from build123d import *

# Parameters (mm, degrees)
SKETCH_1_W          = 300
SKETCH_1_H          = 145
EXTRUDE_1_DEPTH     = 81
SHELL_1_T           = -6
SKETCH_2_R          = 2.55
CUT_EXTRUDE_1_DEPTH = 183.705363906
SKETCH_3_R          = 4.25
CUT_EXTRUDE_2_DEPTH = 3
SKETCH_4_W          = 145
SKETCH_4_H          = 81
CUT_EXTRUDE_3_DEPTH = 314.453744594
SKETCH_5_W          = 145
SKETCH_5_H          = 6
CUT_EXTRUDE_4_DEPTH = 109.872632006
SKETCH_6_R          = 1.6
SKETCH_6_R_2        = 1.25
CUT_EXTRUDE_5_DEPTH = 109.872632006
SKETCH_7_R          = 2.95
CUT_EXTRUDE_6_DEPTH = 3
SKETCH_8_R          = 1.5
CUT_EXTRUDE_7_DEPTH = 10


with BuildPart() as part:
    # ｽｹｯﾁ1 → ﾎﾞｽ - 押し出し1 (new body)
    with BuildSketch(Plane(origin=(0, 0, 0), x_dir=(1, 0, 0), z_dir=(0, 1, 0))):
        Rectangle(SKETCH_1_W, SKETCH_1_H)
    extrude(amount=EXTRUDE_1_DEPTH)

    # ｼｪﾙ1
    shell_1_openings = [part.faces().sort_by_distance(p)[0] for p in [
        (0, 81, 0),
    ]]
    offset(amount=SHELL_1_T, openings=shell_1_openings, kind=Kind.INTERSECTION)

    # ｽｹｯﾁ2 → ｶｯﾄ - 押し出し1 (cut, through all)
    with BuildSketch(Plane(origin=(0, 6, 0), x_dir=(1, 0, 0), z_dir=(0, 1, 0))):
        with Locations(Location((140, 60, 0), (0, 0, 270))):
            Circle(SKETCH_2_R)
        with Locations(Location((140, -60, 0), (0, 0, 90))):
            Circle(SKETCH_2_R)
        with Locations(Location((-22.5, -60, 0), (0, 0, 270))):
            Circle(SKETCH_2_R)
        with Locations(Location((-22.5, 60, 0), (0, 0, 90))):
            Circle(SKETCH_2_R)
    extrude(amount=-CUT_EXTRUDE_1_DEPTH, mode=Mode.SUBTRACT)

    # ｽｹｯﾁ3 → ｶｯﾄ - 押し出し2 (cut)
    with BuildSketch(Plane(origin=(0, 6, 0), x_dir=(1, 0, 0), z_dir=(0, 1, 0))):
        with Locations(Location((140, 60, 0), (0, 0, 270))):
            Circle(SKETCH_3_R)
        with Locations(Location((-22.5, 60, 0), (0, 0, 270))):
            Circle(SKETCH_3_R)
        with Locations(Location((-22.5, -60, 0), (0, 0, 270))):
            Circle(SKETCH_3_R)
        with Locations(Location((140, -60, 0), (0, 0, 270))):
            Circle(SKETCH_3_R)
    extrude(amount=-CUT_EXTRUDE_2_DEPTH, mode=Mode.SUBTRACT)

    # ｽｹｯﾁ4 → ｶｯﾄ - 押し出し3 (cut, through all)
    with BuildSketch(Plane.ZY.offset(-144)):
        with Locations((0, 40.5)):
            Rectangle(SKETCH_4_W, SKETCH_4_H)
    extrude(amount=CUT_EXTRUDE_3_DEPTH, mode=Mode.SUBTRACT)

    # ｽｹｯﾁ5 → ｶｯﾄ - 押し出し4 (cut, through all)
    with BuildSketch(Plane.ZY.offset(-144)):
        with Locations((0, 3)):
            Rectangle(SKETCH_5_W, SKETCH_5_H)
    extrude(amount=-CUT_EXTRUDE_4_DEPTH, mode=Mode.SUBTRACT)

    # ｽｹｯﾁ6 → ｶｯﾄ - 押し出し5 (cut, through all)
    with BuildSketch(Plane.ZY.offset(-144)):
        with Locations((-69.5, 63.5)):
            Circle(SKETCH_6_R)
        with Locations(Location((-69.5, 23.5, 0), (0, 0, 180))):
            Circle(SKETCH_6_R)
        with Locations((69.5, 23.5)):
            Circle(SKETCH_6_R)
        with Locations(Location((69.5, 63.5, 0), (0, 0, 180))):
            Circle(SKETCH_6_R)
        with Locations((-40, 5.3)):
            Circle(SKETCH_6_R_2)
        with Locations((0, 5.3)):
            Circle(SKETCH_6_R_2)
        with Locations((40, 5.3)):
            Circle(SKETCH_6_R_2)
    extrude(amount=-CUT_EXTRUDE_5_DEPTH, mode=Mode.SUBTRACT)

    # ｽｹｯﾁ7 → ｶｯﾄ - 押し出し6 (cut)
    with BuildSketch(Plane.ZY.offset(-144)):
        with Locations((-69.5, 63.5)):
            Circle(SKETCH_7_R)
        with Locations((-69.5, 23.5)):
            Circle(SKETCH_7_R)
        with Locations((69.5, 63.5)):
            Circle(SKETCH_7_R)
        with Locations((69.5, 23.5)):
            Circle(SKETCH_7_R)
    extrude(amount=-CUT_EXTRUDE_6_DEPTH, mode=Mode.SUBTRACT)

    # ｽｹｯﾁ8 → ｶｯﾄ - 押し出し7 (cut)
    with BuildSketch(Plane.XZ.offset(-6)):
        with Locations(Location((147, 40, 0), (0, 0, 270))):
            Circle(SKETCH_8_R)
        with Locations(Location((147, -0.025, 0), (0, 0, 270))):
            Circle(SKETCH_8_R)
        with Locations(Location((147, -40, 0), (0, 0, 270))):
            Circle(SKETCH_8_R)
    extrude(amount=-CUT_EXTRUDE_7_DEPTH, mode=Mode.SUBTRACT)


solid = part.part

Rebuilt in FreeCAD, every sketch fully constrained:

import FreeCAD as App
import Part
import Sketcher


def faces_at(feature, points):
    """Names of the faces that lie closest to the given points."""
    faces = feature.Shape.Faces
    near = lambda p: min(range(len(faces)), key=lambda i: faces[i].distToShape(Part.Vertex(*p))[0])
    return sorted({f"Face{near(p) + 1}" for p in points})

doc = App.newDocument("Part")
body = doc.addObject("PartDesign::Body", "Body")

sketch1 = body.newObject("Sketcher::SketchObject", "Sketch")
sketch1.AttachmentSupport = (doc.getObject("XZ_Plane"), [""])
sketch1.MapMode = "FlatFace"
sketch1.addGeometry([
    Part.LineSegment(App.Vector(-150, -72, 0), App.Vector(-150, 72, 0)),
    Part.LineSegment(App.Vector(-150, 72, 0), App.Vector(150, 72, 0)),
    Part.LineSegment(App.Vector(150, 72, 0), App.Vector(150, -72, 0)),
    Part.LineSegment(App.Vector(150, -72, 0), App.Vector(-150, -72, 0)),
], False)
sketch1.addConstraint([
    Sketcher.Constraint("Coincident", 0, 2, 1, 1),
    Sketcher.Constraint("Coincident", 1, 2, 2, 1),
    Sketcher.Constraint("Coincident", 2, 2, 3, 1),
    Sketcher.Constraint("Coincident", 3, 2, 0, 1),
    Sketcher.Constraint("Vertical", 0),
    Sketcher.Constraint("Horizontal", 1),
    Sketcher.Constraint("Vertical", 2),
    Sketcher.Constraint("Horizontal", 3),
    Sketcher.Constraint("Symmetric", 0, 2, 2, 2, -1, 1),
    Sketcher.Constraint("DistanceX", 1, 1, 1, 2, 300.0),
    Sketcher.Constraint("DistanceY", 0, 1, 0, 2, 145.0),
])
pad1 = body.newObject("PartDesign::Pad", "Pad")
pad1.Profile = sketch1
pad1.Length = 81
pad1.Reversed = True
doc.recompute()

thickness = body.newObject("PartDesign::Thickness", "Thickness")
thickness.Base = (pad1, faces_at(pad1, [(0, 81, 0)]))
thickness.Value = 6
thickness.Reversed = True
thickness.Join = "Intersection"

sketch2 = body.newObject("Sketcher::SketchObject", "Sketch001")
sketch2.AttachmentSupport = (doc.getObject("XZ_Plane"), [""])
sketch2.MapMode = "FlatFace"
sketch2.AttachmentOffset = App.Placement(App.Vector(0, 0, -6), App.Rotation())
sketch2.addGeometry([
    Part.Circle(App.Vector(140, -60, 0), App.Vector(0, 0, 1), 2.5),
    Part.Circle(App.Vector(140, 60, 0), App.Vector(0, 0, 1), 2.5),
    Part.Circle(App.Vector(-22.5, 60, 0), App.Vector(0, 0, 1), 2.5),
    Part.Circle(App.Vector(-22.5, -60, 0), App.Vector(0, 0, 1), 2.5),
], False)
sketch2.addConstraint([
    Sketcher.Constraint("Equal", 0, 1),
    Sketcher.Constraint("Equal", 1, 2),
    Sketcher.Constraint("Equal", 2, 3),
    Sketcher.Constraint("Symmetric", 0, 3, 1, 3, -1),
    Sketcher.Constraint("Symmetric", 2, 3, 3, 3, -1),
    Sketcher.Constraint("Horizontal", 1, 3, 2, 3),
    Sketcher.Constraint("Diameter", 0, 5.1),
    Sketcher.Constraint("DistanceX", -1, 1, 0, 3, 140.0),
    Sketcher.Constraint("DistanceY", 0, 3, -1, 1, 60.0),
    Sketcher.Constraint("DistanceX", 2, 3, -1, 1, 22.5),
])
pocket1 = body.newObject("PartDesign::Pocket", "Pocket")
pocket1.Profile = sketch2
pocket1.Type = "ThroughAll"
pocket1.Reversed = True

sketch3 = body.newObject("Sketcher::SketchObject", "Sketch002")
sketch3.AttachmentSupport = (doc.getObject("XZ_Plane"), [""])
sketch3.MapMode = "FlatFace"
sketch3.AttachmentOffset = App.Placement(App.Vector(0, 0, -6), App.Rotation())
sketch3.addGeometry([
    Part.Circle(App.Vector(140, -60, 0), App.Vector(0, 0, 1), 4.2),
    Part.Circle(App.Vector(-22.5, -60, 0), App.Vector(0, 0, 1), 4.2),
    Part.Circle(App.Vector(-22.5, 60, 0), App.Vector(0, 0, 1), 4.2),
    Part.Circle(App.Vector(140, 60, 0), App.Vector(0, 0, 1), 4.2),
], False)
sketch3.addConstraint([
    Sketcher.Constraint("Equal", 0, 1),
    Sketcher.Constraint("Equal", 1, 2),
    Sketcher.Constraint("Equal", 2, 3),
    Sketcher.Constraint("Symmetric", 1, 3, 2, 3, -1),
    Sketcher.Constraint("Symmetric", 0, 3, 3, 3, -1),
    Sketcher.Constraint("Horizontal", 0, 3, 1, 3),
    Sketcher.Constraint("Diameter", 0, 8.5),
    Sketcher.Constraint("DistanceX", -1, 1, 0, 3, 140.0),
    Sketcher.Constraint("DistanceY", 0, 3, -1, 1, 60.0),
    Sketcher.Constraint("DistanceX", 1, 3, -1, 1, 22.5),
])
pocket2 = body.newObject("PartDesign::Pocket", "Pocket001")
pocket2.Profile = sketch3
pocket2.Length = 3
pocket2.Reversed = True

sketch4 = body.newObject("Sketcher::SketchObject", "Sketch003")
sketch4.AttachmentSupport = (doc.getObject("YZ_Plane"), [""])
sketch4.MapMode = "FlatFace"
sketch4.AttachmentOffset = App.Placement(App.Vector(0, 0, 144), App.Rotation())
sketch4.addGeometry([
    Part.LineSegment(App.Vector(81, -72, 0), App.Vector(0, -72, 0)),
    Part.LineSegment(App.Vector(0, -72, 0), App.Vector(0, 72, 0)),
    Part.LineSegment(App.Vector(0, 72, 0), App.Vector(81, 72, 0)),
    Part.LineSegment(App.Vector(81, 72, 0), App.Vector(81, -72, 0)),
], False)
sketch4.addConstraint([
    Sketcher.Constraint("Coincident", 0, 2, 1, 1),
    Sketcher.Constraint("Coincident", 1, 2, 2, 1),
    Sketcher.Constraint("Coincident", 2, 2, 3, 1),
    Sketcher.Constraint("Coincident", 3, 2, 0, 1),
    Sketcher.Constraint("Horizontal", 0),
    Sketcher.Constraint("Vertical", 1),
    Sketcher.Constraint("Horizontal", 2),
    Sketcher.Constraint("Vertical", 3),
    Sketcher.Constraint("Symmetric", 0, 2, 1, 2, -1, 1),
    Sketcher.Constraint("DistanceX", 0, 2, 0, 1, 81.0),
    Sketcher.Constraint("DistanceY", 1, 1, 1, 2, 145.0),
])
pocket3 = body.newObject("PartDesign::Pocket", "Pocket002")
pocket3.Profile = sketch4
pocket3.Type = "ThroughAll"

sketch5 = body.newObject("Sketcher::SketchObject", "Sketch004")
sketch5.AttachmentSupport = (doc.getObject("YZ_Plane"), [""])
sketch5.MapMode = "FlatFace"
sketch5.AttachmentOffset = App.Placement(App.Vector(0, 0, 144), App.Rotation())
sketch5.addGeometry([
    Part.LineSegment(App.Vector(6, -72, 0), App.Vector(0, -72, 0)),
    Part.LineSegment(App.Vector(0, -72, 0), App.Vector(0, 72, 0)),
    Part.LineSegment(App.Vector(0, 72, 0), App.Vector(6, 72, 0)),
    Part.LineSegment(App.Vector(6, 72, 0), App.Vector(6, -72, 0)),
], False)
sketch5.addConstraint([
    Sketcher.Constraint("Coincident", 0, 2, 1, 1),
    Sketcher.Constraint("Coincident", 1, 2, 2, 1),
    Sketcher.Constraint("Coincident", 2, 2, 3, 1),
    Sketcher.Constraint("Coincident", 3, 2, 0, 1),
    Sketcher.Constraint("Horizontal", 0),
    Sketcher.Constraint("Vertical", 1),
    Sketcher.Constraint("Horizontal", 2),
    Sketcher.Constraint("Vertical", 3),
    Sketcher.Constraint("Symmetric", 0, 2, 1, 2, -1, 1),
    Sketcher.Constraint("DistanceX", 0, 2, 0, 1, 6.0),
    Sketcher.Constraint("DistanceY", 1, 1, 1, 2, 145.0),
])
pocket4 = body.newObject("PartDesign::Pocket", "Pocket003")
pocket4.Profile = sketch5
pocket4.Type = "ThroughAll"
pocket4.Reversed = True

sketch6 = body.newObject("Sketcher::SketchObject", "Sketch005")
sketch6.AttachmentSupport = (doc.getObject("YZ_Plane"), [""])
sketch6.MapMode = "FlatFace"
sketch6.AttachmentOffset = App.Placement(App.Vector(0, 0, 144), App.Rotation())
sketch6.addGeometry([
    Part.Circle(App.Vector(63.5, -69.5, 0), App.Vector(0, 0, 1), 1.6),
    Part.Circle(App.Vector(23.5, -69.5, 0), App.Vector(0, 0, 1), 1.6),
    Part.Circle(App.Vector(23.5, 69.5, 0), App.Vector(0, 0, 1), 1.6),
    Part.Circle(App.Vector(63.5, 69.5, 0), App.Vector(0, 0, 1), 1.6),
    Part.Circle(App.Vector(5.3, -40, 0), App.Vector(0, 0, 1), 1.2),
    Part.Circle(App.Vector(5.3, 0, 0), App.Vector(0, 0, 1), 1.2),
    Part.Circle(App.Vector(5.3, 40, 0), App.Vector(0, 0, 1), 1.2),
], False)
sketch6.addConstraint([
    Sketcher.Constraint("Equal", 0, 1),
    Sketcher.Constraint("Equal", 1, 2),
    Sketcher.Constraint("Equal", 2, 3),
    Sketcher.Constraint("Equal", 4, 5),
    Sketcher.Constraint("Equal", 5, 6),
    Sketcher.Constraint("Symmetric", 1, 3, 2, 3, -1),
    Sketcher.Constraint("Symmetric", 0, 3, 3, 3, -1),
    Sketcher.Constraint("Symmetric", 4, 3, 6, 3, -1),
    Sketcher.Constraint("PointOnObject", 5, 3, -1),
    Sketcher.Constraint("Horizontal", 0, 3, 1, 3),
    Sketcher.Constraint("Vertical", 4, 3, 5, 3),
    Sketcher.Constraint("Diameter", 0, 3.2),
    Sketcher.Constraint("Diameter", 4, 2.5),
    Sketcher.Constraint("DistanceY", 4, 3, -1, 1, 40.0),
    Sketcher.Constraint("DistanceX", 1, 3, 0, 3, 40.0),
    Sketcher.Constraint("DistanceY", 1, 3, 2, 3, 139.0),
    Sketcher.Constraint("DistanceX", -1, 1, 0, 3, 63.5),
    Sketcher.Constraint("DistanceX", -1, 1, 4, 3, 5.3),
])
pocket5 = body.newObject("PartDesign::Pocket", "Pocket004")
pocket5.Profile = sketch6
pocket5.Type = "ThroughAll"
pocket5.Reversed = True

sketch7 = body.newObject("Sketcher::SketchObject", "Sketch006")
sketch7.AttachmentSupport = (doc.getObject("YZ_Plane"), [""])
sketch7.MapMode = "FlatFace"
sketch7.AttachmentOffset = App.Placement(App.Vector(0, 0, 144), App.Rotation())
sketch7.addGeometry([
    Part.Circle(App.Vector(63.5, -69.5, 0), App.Vector(0, 0, 1), 3),
    Part.Circle(App.Vector(23.5, -69.5, 0), App.Vector(0, 0, 1), 3),
    Part.Circle(App.Vector(63.5, 69.5, 0), App.Vector(0, 0, 1), 3),
    Part.Circle(App.Vector(23.5, 69.5, 0), App.Vector(0, 0, 1), 3),
], False)
sketch7.addConstraint([
    Sketcher.Constraint("Equal", 0, 1),
    Sketcher.Constraint("Equal", 1, 2),
    Sketcher.Constraint("Equal", 2, 3),
    Sketcher.Constraint("Symmetric", 0, 3, 2, 3, -1),
    Sketcher.Constraint("Symmetric", 1, 3, 3, 3, -1),
    Sketcher.Constraint("Horizontal", 0, 3, 1, 3),
    Sketcher.Constraint("Diameter", 0, 5.9),
    Sketcher.Constraint("DistanceX", 1, 3, 0, 3, 40.0),
    Sketcher.Constraint("DistanceY", 0, 3, 2, 3, 139.0),
    Sketcher.Constraint("DistanceX", -1, 1, 0, 3, 63.5),
])
pocket6 = body.newObject("PartDesign::Pocket", "Pocket005")
pocket6.Profile = sketch7
pocket6.Length = 3
pocket6.Reversed = True

sketch8 = body.newObject("Sketcher::SketchObject", "Sketch007")
sketch8.AttachmentSupport = (doc.getObject("XZ_Plane"), [""])
sketch8.MapMode = "FlatFace"
sketch8.AttachmentOffset = App.Placement(App.Vector(0, 0, -6), App.Rotation())
sketch8.addGeometry([
    Part.Circle(App.Vector(147, 40, 0), App.Vector(0, 0, 1), 1.5),
    Part.Circle(App.Vector(147, 0, 0), App.Vector(0, 0, 1), 1.5),
    Part.Circle(App.Vector(147, -40, 0), App.Vector(0, 0, 1), 1.5),
], False)
sketch8.addConstraint([
    Sketcher.Constraint("Equal", 0, 1),
    Sketcher.Constraint("Equal", 1, 2),
    Sketcher.Constraint("Symmetric", 0, 3, 2, 3, -1),
    Sketcher.Constraint("Vertical", 0, 3, 1, 3),
    Sketcher.Constraint("Diameter", 0, 3.0),
    Sketcher.Constraint("DistanceX", -1, 1, 0, 3, 147.0),
    Sketcher.Constraint("DistanceY", -1, 1, 0, 3, 40.0),
    Sketcher.Constraint("DistanceY", 1, 3, -1, 1, 0.025),
])
pocket7 = body.newObject("PartDesign::Pocket", "Pocket006")
pocket7.Profile = sketch8
pocket7.Length = 10

doc.recompute()
